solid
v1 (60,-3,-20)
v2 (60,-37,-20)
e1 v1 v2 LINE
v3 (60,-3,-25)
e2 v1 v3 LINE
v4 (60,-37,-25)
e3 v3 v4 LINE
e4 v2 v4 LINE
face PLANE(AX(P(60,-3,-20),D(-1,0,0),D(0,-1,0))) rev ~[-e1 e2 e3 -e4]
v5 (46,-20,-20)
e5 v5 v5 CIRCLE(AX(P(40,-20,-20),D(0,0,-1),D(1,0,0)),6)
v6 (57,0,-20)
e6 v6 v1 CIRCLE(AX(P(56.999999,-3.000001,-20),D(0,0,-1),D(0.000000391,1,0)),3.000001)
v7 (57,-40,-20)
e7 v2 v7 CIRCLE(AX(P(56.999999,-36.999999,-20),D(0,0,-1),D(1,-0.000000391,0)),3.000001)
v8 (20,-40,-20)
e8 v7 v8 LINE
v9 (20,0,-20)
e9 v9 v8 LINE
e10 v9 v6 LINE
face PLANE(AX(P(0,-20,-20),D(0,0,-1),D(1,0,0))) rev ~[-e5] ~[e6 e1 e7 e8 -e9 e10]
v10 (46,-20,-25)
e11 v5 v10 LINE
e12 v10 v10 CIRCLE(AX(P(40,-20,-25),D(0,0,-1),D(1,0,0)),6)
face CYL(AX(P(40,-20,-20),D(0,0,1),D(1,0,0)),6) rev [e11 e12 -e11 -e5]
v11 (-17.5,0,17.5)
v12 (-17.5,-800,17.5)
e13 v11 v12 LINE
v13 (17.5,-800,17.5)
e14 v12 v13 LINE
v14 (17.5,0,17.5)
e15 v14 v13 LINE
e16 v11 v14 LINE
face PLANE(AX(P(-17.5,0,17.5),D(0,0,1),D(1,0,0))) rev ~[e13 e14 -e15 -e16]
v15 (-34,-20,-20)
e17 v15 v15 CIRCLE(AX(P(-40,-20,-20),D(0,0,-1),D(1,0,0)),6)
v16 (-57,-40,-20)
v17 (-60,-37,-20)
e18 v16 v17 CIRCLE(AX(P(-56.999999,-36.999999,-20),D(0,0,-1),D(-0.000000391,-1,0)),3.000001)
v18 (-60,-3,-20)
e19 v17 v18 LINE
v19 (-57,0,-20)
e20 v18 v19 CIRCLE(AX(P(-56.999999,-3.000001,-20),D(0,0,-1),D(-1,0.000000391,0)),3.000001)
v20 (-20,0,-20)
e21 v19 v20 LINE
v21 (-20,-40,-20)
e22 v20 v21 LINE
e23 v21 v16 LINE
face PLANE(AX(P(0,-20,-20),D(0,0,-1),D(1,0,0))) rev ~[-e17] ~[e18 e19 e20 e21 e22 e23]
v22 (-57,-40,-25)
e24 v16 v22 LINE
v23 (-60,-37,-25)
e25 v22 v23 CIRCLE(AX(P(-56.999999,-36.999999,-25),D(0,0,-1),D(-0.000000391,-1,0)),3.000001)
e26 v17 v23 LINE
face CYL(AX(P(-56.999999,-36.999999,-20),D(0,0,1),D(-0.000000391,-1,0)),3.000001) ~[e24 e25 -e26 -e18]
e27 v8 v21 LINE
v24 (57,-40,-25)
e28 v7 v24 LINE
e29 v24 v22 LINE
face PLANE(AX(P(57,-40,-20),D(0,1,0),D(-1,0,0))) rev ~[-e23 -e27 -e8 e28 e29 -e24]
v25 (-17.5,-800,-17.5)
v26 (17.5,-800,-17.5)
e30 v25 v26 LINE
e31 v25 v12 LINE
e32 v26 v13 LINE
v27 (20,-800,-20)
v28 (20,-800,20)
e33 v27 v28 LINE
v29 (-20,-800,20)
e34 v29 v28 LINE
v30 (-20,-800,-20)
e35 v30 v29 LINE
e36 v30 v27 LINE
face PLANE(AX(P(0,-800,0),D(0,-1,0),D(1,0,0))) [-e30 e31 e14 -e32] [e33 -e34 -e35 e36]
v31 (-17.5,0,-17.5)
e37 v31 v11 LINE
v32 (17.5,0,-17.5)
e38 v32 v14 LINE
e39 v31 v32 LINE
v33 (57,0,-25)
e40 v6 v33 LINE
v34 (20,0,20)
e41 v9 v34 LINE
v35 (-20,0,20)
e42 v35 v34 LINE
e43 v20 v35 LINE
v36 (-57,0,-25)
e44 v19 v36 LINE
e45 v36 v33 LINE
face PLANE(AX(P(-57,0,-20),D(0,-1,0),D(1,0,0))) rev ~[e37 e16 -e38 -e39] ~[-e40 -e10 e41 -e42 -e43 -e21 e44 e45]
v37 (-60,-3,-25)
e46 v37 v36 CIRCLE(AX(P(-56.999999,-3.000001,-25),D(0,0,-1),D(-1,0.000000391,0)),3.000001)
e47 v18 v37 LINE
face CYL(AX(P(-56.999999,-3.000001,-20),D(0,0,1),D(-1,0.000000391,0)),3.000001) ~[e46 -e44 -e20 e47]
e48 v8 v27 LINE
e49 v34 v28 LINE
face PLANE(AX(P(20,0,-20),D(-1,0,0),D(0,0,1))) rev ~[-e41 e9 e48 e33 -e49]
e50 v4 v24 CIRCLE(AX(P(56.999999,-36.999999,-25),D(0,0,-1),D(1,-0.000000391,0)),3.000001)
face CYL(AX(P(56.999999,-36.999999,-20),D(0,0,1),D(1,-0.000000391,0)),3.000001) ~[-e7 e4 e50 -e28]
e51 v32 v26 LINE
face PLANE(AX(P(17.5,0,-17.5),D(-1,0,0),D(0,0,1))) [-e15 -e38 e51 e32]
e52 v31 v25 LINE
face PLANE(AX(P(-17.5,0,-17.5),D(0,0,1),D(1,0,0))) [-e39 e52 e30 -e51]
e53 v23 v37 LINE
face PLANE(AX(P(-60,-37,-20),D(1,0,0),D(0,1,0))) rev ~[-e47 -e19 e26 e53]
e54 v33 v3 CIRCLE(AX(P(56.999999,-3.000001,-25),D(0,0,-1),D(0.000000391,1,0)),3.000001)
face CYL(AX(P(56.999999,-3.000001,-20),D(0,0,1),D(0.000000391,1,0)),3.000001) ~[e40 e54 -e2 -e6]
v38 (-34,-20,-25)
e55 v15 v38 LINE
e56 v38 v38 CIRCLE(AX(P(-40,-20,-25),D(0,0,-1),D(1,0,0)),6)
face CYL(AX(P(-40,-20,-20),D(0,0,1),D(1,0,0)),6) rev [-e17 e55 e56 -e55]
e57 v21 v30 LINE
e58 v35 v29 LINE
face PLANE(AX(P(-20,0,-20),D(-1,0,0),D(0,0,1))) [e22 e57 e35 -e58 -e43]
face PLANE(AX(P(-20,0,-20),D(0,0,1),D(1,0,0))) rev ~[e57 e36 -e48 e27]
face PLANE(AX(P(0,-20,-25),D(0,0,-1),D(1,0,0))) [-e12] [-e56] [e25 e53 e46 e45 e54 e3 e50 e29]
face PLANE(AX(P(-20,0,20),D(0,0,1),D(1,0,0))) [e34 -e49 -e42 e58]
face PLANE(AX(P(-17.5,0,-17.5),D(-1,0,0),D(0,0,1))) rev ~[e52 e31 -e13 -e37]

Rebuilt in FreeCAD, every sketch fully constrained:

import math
import FreeCAD as App
import Part
import Sketcher

V = App.Vector
Q = App.Units.Quantity


def add_polygon(sketch, points):
    """Adds a closed chain of lines whose ends are joined by coincident constraints."""
    first, n = sketch.GeometryCount, len(points)
    for a, b in zip(points, points[1:] + points[:1]):
        sketch.addGeometry(Part.LineSegment(App.Vector(*a, 0), App.Vector(*b, 0)), False)
    for i in range(n):
        sketch.addConstraint(Sketcher.Constraint("Coincident", first + i, 2, first + (i + 1) % n, 1))

doc = App.newDocument("Part")
body = doc.addObject("PartDesign::Body", "Body")

# Sketch on XZ plane
sketch1 = body.newObject("Sketcher::SketchObject", "Sketch")
sketch1.AttachmentSupport = (doc.getObject("XZ_Plane"), [""])
sketch1.MapMode = "FlatFace"
add_polygon(sketch1, [(-20, 20), (-20, -20), (20, -20), (20, 20)])  # lines 0-3
add_polygon(sketch1, [(18, -18), (-18, -18), (-18, 18), (18, 18)])  # lines 4-7
sketch1.addConstraint([
    Sketcher.Constraint("Vertical", 0),
    Sketcher.Constraint("Horizontal", 1),
    Sketcher.Constraint("Vertical", 2),
    Sketcher.Constraint("Horizontal", 3),
    Sketcher.Constraint("Horizontal", 4),
    Sketcher.Constraint("Vertical", 5),
    Sketcher.Constraint("Horizontal", 6),
    Sketcher.Constraint("Vertical", 7),
    Sketcher.Constraint("Symmetric", 0, 2, 2, 2, -1, 1),
    Sketcher.Constraint("Symmetric", 4, 2, 6, 2, -1, 1),
    Sketcher.Constraint("Equal", 3, 0),
    Sketcher.Constraint("Equal", 6, 5),
    Sketcher.Constraint("DistanceX", 1, 1, 1, 2, Q("40 mm")),
    Sketcher.Constraint("DistanceX", 4, 2, 4, 1, Q("35 mm")),
])
pad1 = body.newObject("PartDesign::Pad", "Pad")
pad1.Profile = sketch1
pad1.Length = 800

# Sketch on XY plane
sketch2 = body.newObject("Sketcher::SketchObject", "Sketch001")
sketch2.AttachmentSupport = (doc.getObject("XY_Plane"), [""])
sketch2.MapMode = "FlatFace"
sketch2.AttachmentOffset = App.Placement(V(0, 0, -20), App.Rotation())
sketch2.addGeometry([
    Part.ArcOfCircle(Part.Circle(V(-57, -3, 0), V(0, 0, 1), 3), math.radians(90), math.radians(180)),  # 0
    Part.LineSegment(V(-57, 0, 0), V(57, 0, 0)),  # 1
    Part.ArcOfCircle(Part.Circle(V(57, -3, 0), V(0, 0, 1), 3), math.radians(0), math.radians(90)),  # 2
    Part.LineSegment(V(60, -3, 0), V(60, -37, 0)),  # 3
    Part.ArcOfCircle(Part.Circle(V(57, -37, 0), V(0, 0, 1), 3), math.radians(-90), math.radians(0)),  # 4
    Part.LineSegment(V(57, -40, 0), V(-57, -40, 0)),  # 5
    Part.ArcOfCircle(Part.Circle(V(-57, -37, 0), V(0, 0, 1), 3), math.radians(-180), math.radians(-90)),  # 6
    Part.LineSegment(V(-60, -37, 0), V(-60, -3, 0)),  # 7
    Part.Circle(V(-40, -20, 0), V(0, 0, 1), 6),  # 8
    Part.Circle(V(40, -20, 0), V(0, 0, 1), 6),  # 9
], False)
sketch2.addConstraint([
    Sketcher.Constraint("Tangent", 0, 1, 1, 1),
    Sketcher.Constraint("Tangent", 1, 2, 2, 2),
    Sketcher.Constraint("Tangent", 2, 1, 3, 1),
    Sketcher.Constraint("Tangent", 3, 2, 4, 2),
    Sketcher.Constraint("Tangent", 4, 1, 5, 1),
    Sketcher.Constraint("Tangent", 5, 2, 6, 2),
    Sketcher.Constraint("Tangent", 6, 1, 7, 1),
    Sketcher.Constraint("Tangent", 7, 2, 0, 2),
    Sketcher.Constraint("Horizontal", 1),
    Sketcher.Constraint("Vertical", 3),
    Sketcher.Constraint("Horizontal", 5),
    Sketcher.Constraint("Vertical", 7),
    Sketcher.Constraint("Equal", 0, 2),
    Sketcher.Constraint("Equal", 2, 4),
    Sketcher.Constraint("Equal", 4, 6),
    Sketcher.Constraint("Equal", 8, 9),
    Sketcher.Constraint("Symmetric", 0, 1, 1, 2, -1, 1),
    Sketcher.Constraint("Symmetric", 8, 3, 9, 3, -2),
    Sketcher.Constraint("Diameter", 8, Q("12 mm")),
    Sketcher.Constraint("Radius", 0, Q("3.000001 mm")),
    Sketcher.Constraint("DistanceX", 1, 1, 1, 2, Q("114 mm")),
    Sketcher.Constraint("DistanceY", 3, 2, 3, 1, Q("34 mm")),
    Sketcher.Constraint("DistanceX", 8, 3, -1, 1, Q("40 mm")),
    Sketcher.Constraint("DistanceY", 8, 3, -1, 1, Q("20 mm")),
])
pad2 = body.newObject("PartDesign::Pad", "Pad001")
pad2.Profile = sketch2
pad2.Length = 5
pad2.Reversed = True

doc.recompute()
